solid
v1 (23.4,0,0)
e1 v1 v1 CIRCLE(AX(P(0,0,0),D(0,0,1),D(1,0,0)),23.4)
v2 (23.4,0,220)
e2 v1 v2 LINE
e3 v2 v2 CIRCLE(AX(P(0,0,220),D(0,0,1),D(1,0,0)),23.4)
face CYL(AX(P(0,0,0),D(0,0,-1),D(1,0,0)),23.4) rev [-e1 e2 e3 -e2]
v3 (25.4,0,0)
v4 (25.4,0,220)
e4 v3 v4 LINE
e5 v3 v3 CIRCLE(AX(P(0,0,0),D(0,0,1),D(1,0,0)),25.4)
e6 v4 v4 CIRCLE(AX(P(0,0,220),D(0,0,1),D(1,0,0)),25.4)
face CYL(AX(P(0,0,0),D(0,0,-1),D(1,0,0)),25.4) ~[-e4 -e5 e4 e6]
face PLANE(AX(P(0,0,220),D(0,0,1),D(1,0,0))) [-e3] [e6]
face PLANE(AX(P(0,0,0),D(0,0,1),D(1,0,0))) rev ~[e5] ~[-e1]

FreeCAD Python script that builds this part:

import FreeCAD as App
import Part
import Sketcher
Q = App.Units.Quantity

doc = App.newDocument("Part")
body = doc.addObject("PartDesign::Body", "Body")

# Sketch on XY plane
sketch1 = doc.addObject("Sketcher::SketchObject", "Sketch")
body.addObject(sketch1)
sketch1.AttachmentSupport = (doc.XY_Plane, [""])
sketch1.MapMode = "FlatFace"
sketch1.addGeometry(Part.Circle(App.Vector(0, 0, 0), App.Vector(0, 0, 1), 25.4), False)
sketch1.addGeometry(Part.Circle(App.Vector(0, 0, 0), App.Vector(0, 0, 1), 23.4), False)
sketch1.addConstraint(Sketcher.Constraint("Coincident", 0, 3, -1, 1))
sketch1.addConstraint(Sketcher.Constraint("Coincident", 1, 3, -1, 1))
sketch1.addConstraint(Sketcher.Constraint("Diameter", 0, Q("50.8 mm")))
sketch1.addConstraint(Sketcher.Constraint("Diameter", 1, Q("46.8 mm")))
pad1 = doc.addObject("PartDesign::Pad", "Pad")
body.addObject(pad1)
pad1.Profile = sketch1
pad1.Length = 220

doc.recompute()
